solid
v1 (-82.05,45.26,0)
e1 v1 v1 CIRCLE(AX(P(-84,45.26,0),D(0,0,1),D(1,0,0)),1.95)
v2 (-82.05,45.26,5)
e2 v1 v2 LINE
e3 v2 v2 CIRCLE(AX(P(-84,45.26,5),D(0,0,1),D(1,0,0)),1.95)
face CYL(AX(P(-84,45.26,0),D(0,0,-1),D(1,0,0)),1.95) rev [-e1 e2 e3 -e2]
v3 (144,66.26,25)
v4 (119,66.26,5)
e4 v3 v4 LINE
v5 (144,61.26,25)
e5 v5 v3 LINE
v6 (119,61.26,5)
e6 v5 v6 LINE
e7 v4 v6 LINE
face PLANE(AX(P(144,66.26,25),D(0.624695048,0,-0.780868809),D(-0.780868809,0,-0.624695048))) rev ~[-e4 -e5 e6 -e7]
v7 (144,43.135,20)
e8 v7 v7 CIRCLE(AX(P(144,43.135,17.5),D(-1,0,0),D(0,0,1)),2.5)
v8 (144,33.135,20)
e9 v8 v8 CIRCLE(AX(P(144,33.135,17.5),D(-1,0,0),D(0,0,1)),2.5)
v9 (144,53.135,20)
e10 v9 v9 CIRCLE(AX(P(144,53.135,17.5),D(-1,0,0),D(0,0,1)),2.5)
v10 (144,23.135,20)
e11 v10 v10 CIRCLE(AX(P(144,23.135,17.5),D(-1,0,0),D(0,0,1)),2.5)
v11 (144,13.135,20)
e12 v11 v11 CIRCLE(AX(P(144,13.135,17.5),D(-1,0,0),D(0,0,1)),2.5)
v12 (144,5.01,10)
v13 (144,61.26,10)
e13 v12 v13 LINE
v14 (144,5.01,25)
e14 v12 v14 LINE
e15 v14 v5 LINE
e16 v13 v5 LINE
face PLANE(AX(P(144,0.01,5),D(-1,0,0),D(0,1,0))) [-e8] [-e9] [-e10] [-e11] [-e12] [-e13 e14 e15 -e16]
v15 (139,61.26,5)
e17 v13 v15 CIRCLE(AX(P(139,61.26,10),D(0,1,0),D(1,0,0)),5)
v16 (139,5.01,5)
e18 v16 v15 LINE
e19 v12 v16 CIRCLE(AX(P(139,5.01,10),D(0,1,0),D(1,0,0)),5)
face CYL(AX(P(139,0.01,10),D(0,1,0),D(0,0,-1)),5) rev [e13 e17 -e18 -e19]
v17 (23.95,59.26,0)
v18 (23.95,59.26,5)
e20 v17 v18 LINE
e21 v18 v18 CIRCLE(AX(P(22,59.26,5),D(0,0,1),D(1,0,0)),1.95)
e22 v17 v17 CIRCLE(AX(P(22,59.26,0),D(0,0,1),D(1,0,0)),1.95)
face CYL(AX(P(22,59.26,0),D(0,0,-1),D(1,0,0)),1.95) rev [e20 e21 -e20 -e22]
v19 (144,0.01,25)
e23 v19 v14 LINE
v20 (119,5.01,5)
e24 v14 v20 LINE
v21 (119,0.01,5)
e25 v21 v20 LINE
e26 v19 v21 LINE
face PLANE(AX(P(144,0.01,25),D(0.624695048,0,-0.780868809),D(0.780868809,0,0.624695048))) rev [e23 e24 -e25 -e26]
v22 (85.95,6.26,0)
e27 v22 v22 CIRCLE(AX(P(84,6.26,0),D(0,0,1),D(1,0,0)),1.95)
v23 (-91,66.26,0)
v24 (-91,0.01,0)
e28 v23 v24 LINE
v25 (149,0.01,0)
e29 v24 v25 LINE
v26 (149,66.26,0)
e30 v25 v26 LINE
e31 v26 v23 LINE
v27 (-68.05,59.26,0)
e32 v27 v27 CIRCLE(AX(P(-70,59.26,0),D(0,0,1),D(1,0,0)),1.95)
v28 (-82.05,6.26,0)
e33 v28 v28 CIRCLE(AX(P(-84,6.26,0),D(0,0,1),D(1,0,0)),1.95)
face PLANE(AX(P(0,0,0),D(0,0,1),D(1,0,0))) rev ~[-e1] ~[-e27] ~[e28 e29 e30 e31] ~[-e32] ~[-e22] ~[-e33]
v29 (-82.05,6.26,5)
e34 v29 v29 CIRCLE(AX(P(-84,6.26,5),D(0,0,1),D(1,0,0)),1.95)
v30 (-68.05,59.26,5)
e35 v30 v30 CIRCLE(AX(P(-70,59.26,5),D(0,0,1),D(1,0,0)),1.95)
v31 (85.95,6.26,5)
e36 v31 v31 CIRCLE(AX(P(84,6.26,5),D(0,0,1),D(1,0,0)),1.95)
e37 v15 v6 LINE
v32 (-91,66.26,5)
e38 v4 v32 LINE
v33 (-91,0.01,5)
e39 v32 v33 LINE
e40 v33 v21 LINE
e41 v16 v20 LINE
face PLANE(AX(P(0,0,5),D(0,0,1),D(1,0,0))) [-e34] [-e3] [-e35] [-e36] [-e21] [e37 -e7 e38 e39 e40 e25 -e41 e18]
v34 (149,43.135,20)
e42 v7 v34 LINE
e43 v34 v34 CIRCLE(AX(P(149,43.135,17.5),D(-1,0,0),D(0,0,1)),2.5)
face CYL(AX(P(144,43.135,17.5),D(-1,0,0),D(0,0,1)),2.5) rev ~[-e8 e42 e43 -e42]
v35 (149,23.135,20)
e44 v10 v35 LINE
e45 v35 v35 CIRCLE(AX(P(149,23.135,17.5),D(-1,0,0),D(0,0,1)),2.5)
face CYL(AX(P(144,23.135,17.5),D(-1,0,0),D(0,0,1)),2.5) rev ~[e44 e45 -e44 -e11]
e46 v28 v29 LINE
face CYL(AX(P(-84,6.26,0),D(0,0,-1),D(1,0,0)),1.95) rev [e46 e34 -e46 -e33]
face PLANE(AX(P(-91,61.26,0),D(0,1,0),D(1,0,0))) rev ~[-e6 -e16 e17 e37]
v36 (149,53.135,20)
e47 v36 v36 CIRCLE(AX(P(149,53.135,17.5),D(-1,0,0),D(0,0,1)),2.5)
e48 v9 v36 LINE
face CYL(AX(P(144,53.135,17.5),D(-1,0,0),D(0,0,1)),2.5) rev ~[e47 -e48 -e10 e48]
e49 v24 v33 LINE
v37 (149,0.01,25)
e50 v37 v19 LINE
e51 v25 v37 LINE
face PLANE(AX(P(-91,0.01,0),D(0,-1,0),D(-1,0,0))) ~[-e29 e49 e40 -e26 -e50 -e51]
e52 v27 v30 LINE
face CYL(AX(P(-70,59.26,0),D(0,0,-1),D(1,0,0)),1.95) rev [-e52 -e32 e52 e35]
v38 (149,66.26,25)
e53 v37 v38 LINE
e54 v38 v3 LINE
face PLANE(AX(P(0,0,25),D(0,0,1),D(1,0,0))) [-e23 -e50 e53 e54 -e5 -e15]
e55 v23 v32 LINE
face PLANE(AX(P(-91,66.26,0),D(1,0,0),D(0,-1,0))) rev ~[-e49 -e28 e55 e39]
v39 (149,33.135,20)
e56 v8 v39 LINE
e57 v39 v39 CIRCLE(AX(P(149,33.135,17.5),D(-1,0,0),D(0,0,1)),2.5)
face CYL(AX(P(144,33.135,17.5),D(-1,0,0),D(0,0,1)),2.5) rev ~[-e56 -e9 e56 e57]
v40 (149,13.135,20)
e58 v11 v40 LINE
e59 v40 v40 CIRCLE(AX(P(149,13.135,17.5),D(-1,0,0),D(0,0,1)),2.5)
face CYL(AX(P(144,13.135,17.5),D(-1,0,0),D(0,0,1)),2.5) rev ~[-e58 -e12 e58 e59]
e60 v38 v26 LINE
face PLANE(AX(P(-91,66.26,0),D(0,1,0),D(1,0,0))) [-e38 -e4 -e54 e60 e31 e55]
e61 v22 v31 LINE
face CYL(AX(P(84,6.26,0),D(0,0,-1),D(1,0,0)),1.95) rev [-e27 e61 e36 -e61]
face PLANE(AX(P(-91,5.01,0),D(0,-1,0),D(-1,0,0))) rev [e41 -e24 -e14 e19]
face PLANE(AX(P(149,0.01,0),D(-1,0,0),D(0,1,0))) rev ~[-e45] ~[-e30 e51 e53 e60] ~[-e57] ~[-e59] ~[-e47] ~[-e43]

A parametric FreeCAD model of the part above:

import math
import FreeCAD as App
import Part
import Sketcher

V = App.Vector


def edges_at(feature, points):
    """Names of the edges that pass closest to the given points."""
    edges = feature.Shape.Edges
    near = lambda p: min(range(len(edges)), key=lambda i: edges[i].distToShape(Part.Vertex(*p))[0])
    return sorted({f"Edge{near(p) + 1}" for p in points})


def add_polygon(sketch, points):
    """Adds a closed chain of lines whose ends are joined by coincident constraints."""
    first, n = sketch.GeometryCount, len(points)
    for a, b in zip(points, points[1:] + points[:1]):
        sketch.addGeometry(Part.LineSegment(App.Vector(*a, 0), App.Vector(*b, 0)), False)
    for i in range(n):
        sketch.addConstraint(Sketcher.Constraint("Coincident", first + i, 2, first + (i + 1) % n, 1))

doc = App.newDocument("Part")
body = doc.addObject("PartDesign::Body", "Body")

# Sketch on XY plane
sketch1 = body.newObject("Sketcher::SketchObject", "Sketch")
sketch1.AttachmentSupport = (doc.getObject("XY_Plane"), [""])
sketch1.MapMode = "FlatFace"
add_polygon(sketch1, [(-91, 66.3), (-91, 0), (149, 0), (149, 66.3)])  # lines 0-3
sketch1.addGeometry(Part.Circle(V(-84, 6.3, 0), V(0, 0, 1), 1.9), False)  # 4
sketch1.addGeometry(Part.Circle(V(84, 6.3, 0), V(0, 0, 1), 1.9), False)  # 5
sketch1.addGeometry(Part.Circle(V(-84, 45.3, 0), V(0, 0, 1), 1.9), False)  # 6
sketch1.addGeometry(Part.Circle(V(-70, 59.3, 0), V(0, 0, 1), 1.9), False)  # 7
sketch1.addGeometry(Part.Circle(V(22, 59.3, 0), V(0, 0, 1), 1.9), False)  # 8
sketch1.addConstraint([
    Sketcher.Constraint("Vertical", 0),
    Sketcher.Constraint("Horizontal", 1),
    Sketcher.Constraint("Vertical", 2),
    Sketcher.Constraint("Horizontal", 3),
    Sketcher.Constraint("Equal", 4, 5),
    Sketcher.Constraint("Equal", 5, 6),
    Sketcher.Constraint("Equal", 6, 7),
    Sketcher.Constraint("Equal", 7, 8),
    Sketcher.Constraint("Symmetric", 4, 3, 5, 3, -2),
    Sketcher.Constraint("Horizontal", 7, 3, 8, 3),
    Sketcher.Constraint("Vertical", 4, 3, 6, 3),
    Sketcher.Constraint("Diameter", 4, 3.9),
    Sketcher.Constraint("DistanceX", 1, 1, 1, 2, 240.0),
    Sketcher.Constraint("DistanceX", 4, 3, -1, 1, 84.0),
    Sketcher.Constraint("DistanceX", 7, 3, -1, 1, 70.0),
    Sketcher.Constraint("DistanceX", -1, 1, 8, 3, 22.0),
    Sketcher.Constraint("DistanceX", 0, 2, -1, 1, 91.0),
    Sketcher.Constraint("DistanceY", 4, 3, 6, 3, 39.0),
    Sketcher.Constraint("DistanceY", 6, 3, 7, 3, 14.0),
    Sketcher.Constraint("DistanceY", 5, 3, 2, 2, 60.0),
    Sketcher.Constraint("DistanceY", 0, 2, 0, 1, 66.25),
    Sketcher.Constraint("DistanceY", -1, 1, 4, 3, 6.26),
])
pad1 = body.newObject("PartDesign::Pad", "Pad")
pad1.Profile = sketch1
pad1.Length = 5

# Sketch on XY plane
sketch2 = body.newObject("Sketcher::SketchObject", "Sketch001")
sketch2.AttachmentSupport = (doc.getObject("XY_Plane"), [""])
sketch2.MapMode = "FlatFace"
sketch2.AttachmentOffset = App.Placement(V(0, 0, 5), App.Rotation())
add_polygon(sketch2, [(144, 0), (149, 0), (149, 66), (144, 66)])  # lines 0-3
sketch2.addConstraint([
    Sketcher.Constraint("Horizontal", 0),
    Sketcher.Constraint("Vertical", 1),
    Sketcher.Constraint("Horizontal", 2),
    Sketcher.Constraint("Vertical", 3),
    Sketcher.Constraint("DistanceX", 0, 1, 0, 2, 5.0),
    Sketcher.Constraint("DistanceX", -1, 1, 0, 2, 149.0),
    Sketcher.Constraint("DistanceY", 1, 1, 1, 2, 66.25),
    Sketcher.Constraint("DistanceY", -1, 1, 0, 2, 0.01),
])
pad2 = body.newObject("PartDesign::Pad", "Pad001")
pad2.Profile = sketch2
pad2.Length = 20
doc.recompute()

fillet = body.newObject("PartDesign::Fillet", "Fillet")
fillet.Base = (pad2, edges_at(pad2, [(144, 33.135, 5)]))
fillet.Radius = 5

# Sketch on XZ plane
sketch3 = body.newObject("Sketcher::SketchObject", "Sketch002")
sketch3.AttachmentSupport = (doc.getObject("XZ_Plane"), [""])
sketch3.MapMode = "FlatFace"
sketch3.AttachmentOffset = App.Placement(V(0, 0, -66.26), App.Rotation())
sketch3.addGeometry([
    Part.LineSegment(V(119, 5, 0), V(144, 25, 0)),
    Part.LineSegment(V(144, 25, 0), V(144, 10, 0)),
    Part.ArcOfCircle(Part.Circle(V(139, 10, 0), V(0, 0, 1), 5), math.radians(-90), math.radians(0)),
    Part.LineSegment(V(139, 5, 0), V(119, 5, 0)),
], False)
sketch3.addConstraint([
    Sketcher.Constraint("Coincident", 0, 2, 1, 1),
    Sketcher.Constraint("Tangent", 1, 2, 2, 2),
    Sketcher.Constraint("Tangent", 2, 1, 3, 1),
    Sketcher.Constraint("Coincident", 3, 2, 0, 1),
    Sketcher.Constraint("Vertical", 1),
    Sketcher.Constraint("Horizontal", 3),
    Sketcher.Constraint("DistanceX", 3, 2, 3, 1, 20.0),
    Sketcher.Constraint("Radius", 2, 5.0),
    Sketcher.Constraint("DistanceY", 2, 1, 0, 2, 20.0),
    Sketcher.Constraint("DistanceX", -1, 1, 2, 3, 139.0),
    Sketcher.Constraint("DistanceY", -1, 1, 2, 3, 10.0),
])
pad3 = body.newObject("PartDesign::Pad", "Pad002")
pad3.Profile = sketch3
pad3.Length = 5
doc.recompute()

datumplane = body.newObject("PartDesign::Plane", "DatumPlane")
datumplane.AttachmentSupport = (doc.getObject("XZ_Plane"), [""])
datumplane.MapMode = "FlatFace"
datumplane.AttachmentOffset = App.Placement(V(0, 0, -33.135), App.Rotation())
mirrored = body.newObject("PartDesign::Mirrored", "Mirrored")
mirrored.Originals = [pad3]
mirrored.MirrorPlane = (datumplane, [""])
body.Tip = mirrored

# Sketch on YZ plane
sketch4 = body.newObject("Sketcher::SketchObject", "Sketch003")
sketch4.AttachmentSupport = (doc.getObject("YZ_Plane"), [""])
sketch4.MapMode = "FlatFace"
sketch4.AttachmentOffset = App.Placement(V(0, 0, 144), App.Rotation())
sketch4.addGeometry([
    Part.Circle(V(43.1, 17.5, 0), V(0, 0, 1), 2.5),  # 0
    Part.Circle(V(23.1, 17.5, 0), V(0, 0, 1), 2.5),  # 1
    Part.Circle(V(33.1, 17.5, 0), V(0, 0, 1), 2.5),  # 2
    Part.Circle(V(53.1, 17.5, 0), V(0, 0, 1), 2.5),  # 3
    Part.Circle(V(13.1, 17.5, 0), V(0, 0, 1), 2.5),  # 4
], False)
sketch4.addConstraint([
    Sketcher.Constraint("Equal", 0, 1),
    Sketcher.Constraint("Equal", 1, 2),
    Sketcher.Constraint("Equal", 2, 3),
    Sketcher.Constraint("Equal", 3, 4),
    Sketcher.Constraint("Horizontal", 0, 3, 1, 3),
    Sketcher.Constraint("Horizontal", 1, 3, 2, 3),
    Sketcher.Constraint("Horizontal", 2, 3, 3, 3),
    Sketcher.Constraint("Horizontal", 3, 3, 4, 3),
    Sketcher.Constraint("Diameter", 0, 5.0),
    Sketcher.Constraint("DistanceX", 1, 3, 2, 3, 10.0),
    Sketcher.Constraint("DistanceX", 2, 3, 0, 3, 10.0),
    Sketcher.Constraint("DistanceX", 0, 3, 3, 3, 10.0),
    Sketcher.Constraint("DistanceX", 4, 3, 1, 3, 10.0),
    Sketcher.Constraint("DistanceY", -1, 1, 0, 3, 17.5),
    Sketcher.Constraint("DistanceX", -1, 1, 0, 3, 43.135),
])
pocket1 = body.newObject("PartDesign::Pocket", "Pocket")
pocket1.Profile = sketch4
pocket1.Type = "ThroughAll"
pocket1.Reversed = True

doc.recompute()
